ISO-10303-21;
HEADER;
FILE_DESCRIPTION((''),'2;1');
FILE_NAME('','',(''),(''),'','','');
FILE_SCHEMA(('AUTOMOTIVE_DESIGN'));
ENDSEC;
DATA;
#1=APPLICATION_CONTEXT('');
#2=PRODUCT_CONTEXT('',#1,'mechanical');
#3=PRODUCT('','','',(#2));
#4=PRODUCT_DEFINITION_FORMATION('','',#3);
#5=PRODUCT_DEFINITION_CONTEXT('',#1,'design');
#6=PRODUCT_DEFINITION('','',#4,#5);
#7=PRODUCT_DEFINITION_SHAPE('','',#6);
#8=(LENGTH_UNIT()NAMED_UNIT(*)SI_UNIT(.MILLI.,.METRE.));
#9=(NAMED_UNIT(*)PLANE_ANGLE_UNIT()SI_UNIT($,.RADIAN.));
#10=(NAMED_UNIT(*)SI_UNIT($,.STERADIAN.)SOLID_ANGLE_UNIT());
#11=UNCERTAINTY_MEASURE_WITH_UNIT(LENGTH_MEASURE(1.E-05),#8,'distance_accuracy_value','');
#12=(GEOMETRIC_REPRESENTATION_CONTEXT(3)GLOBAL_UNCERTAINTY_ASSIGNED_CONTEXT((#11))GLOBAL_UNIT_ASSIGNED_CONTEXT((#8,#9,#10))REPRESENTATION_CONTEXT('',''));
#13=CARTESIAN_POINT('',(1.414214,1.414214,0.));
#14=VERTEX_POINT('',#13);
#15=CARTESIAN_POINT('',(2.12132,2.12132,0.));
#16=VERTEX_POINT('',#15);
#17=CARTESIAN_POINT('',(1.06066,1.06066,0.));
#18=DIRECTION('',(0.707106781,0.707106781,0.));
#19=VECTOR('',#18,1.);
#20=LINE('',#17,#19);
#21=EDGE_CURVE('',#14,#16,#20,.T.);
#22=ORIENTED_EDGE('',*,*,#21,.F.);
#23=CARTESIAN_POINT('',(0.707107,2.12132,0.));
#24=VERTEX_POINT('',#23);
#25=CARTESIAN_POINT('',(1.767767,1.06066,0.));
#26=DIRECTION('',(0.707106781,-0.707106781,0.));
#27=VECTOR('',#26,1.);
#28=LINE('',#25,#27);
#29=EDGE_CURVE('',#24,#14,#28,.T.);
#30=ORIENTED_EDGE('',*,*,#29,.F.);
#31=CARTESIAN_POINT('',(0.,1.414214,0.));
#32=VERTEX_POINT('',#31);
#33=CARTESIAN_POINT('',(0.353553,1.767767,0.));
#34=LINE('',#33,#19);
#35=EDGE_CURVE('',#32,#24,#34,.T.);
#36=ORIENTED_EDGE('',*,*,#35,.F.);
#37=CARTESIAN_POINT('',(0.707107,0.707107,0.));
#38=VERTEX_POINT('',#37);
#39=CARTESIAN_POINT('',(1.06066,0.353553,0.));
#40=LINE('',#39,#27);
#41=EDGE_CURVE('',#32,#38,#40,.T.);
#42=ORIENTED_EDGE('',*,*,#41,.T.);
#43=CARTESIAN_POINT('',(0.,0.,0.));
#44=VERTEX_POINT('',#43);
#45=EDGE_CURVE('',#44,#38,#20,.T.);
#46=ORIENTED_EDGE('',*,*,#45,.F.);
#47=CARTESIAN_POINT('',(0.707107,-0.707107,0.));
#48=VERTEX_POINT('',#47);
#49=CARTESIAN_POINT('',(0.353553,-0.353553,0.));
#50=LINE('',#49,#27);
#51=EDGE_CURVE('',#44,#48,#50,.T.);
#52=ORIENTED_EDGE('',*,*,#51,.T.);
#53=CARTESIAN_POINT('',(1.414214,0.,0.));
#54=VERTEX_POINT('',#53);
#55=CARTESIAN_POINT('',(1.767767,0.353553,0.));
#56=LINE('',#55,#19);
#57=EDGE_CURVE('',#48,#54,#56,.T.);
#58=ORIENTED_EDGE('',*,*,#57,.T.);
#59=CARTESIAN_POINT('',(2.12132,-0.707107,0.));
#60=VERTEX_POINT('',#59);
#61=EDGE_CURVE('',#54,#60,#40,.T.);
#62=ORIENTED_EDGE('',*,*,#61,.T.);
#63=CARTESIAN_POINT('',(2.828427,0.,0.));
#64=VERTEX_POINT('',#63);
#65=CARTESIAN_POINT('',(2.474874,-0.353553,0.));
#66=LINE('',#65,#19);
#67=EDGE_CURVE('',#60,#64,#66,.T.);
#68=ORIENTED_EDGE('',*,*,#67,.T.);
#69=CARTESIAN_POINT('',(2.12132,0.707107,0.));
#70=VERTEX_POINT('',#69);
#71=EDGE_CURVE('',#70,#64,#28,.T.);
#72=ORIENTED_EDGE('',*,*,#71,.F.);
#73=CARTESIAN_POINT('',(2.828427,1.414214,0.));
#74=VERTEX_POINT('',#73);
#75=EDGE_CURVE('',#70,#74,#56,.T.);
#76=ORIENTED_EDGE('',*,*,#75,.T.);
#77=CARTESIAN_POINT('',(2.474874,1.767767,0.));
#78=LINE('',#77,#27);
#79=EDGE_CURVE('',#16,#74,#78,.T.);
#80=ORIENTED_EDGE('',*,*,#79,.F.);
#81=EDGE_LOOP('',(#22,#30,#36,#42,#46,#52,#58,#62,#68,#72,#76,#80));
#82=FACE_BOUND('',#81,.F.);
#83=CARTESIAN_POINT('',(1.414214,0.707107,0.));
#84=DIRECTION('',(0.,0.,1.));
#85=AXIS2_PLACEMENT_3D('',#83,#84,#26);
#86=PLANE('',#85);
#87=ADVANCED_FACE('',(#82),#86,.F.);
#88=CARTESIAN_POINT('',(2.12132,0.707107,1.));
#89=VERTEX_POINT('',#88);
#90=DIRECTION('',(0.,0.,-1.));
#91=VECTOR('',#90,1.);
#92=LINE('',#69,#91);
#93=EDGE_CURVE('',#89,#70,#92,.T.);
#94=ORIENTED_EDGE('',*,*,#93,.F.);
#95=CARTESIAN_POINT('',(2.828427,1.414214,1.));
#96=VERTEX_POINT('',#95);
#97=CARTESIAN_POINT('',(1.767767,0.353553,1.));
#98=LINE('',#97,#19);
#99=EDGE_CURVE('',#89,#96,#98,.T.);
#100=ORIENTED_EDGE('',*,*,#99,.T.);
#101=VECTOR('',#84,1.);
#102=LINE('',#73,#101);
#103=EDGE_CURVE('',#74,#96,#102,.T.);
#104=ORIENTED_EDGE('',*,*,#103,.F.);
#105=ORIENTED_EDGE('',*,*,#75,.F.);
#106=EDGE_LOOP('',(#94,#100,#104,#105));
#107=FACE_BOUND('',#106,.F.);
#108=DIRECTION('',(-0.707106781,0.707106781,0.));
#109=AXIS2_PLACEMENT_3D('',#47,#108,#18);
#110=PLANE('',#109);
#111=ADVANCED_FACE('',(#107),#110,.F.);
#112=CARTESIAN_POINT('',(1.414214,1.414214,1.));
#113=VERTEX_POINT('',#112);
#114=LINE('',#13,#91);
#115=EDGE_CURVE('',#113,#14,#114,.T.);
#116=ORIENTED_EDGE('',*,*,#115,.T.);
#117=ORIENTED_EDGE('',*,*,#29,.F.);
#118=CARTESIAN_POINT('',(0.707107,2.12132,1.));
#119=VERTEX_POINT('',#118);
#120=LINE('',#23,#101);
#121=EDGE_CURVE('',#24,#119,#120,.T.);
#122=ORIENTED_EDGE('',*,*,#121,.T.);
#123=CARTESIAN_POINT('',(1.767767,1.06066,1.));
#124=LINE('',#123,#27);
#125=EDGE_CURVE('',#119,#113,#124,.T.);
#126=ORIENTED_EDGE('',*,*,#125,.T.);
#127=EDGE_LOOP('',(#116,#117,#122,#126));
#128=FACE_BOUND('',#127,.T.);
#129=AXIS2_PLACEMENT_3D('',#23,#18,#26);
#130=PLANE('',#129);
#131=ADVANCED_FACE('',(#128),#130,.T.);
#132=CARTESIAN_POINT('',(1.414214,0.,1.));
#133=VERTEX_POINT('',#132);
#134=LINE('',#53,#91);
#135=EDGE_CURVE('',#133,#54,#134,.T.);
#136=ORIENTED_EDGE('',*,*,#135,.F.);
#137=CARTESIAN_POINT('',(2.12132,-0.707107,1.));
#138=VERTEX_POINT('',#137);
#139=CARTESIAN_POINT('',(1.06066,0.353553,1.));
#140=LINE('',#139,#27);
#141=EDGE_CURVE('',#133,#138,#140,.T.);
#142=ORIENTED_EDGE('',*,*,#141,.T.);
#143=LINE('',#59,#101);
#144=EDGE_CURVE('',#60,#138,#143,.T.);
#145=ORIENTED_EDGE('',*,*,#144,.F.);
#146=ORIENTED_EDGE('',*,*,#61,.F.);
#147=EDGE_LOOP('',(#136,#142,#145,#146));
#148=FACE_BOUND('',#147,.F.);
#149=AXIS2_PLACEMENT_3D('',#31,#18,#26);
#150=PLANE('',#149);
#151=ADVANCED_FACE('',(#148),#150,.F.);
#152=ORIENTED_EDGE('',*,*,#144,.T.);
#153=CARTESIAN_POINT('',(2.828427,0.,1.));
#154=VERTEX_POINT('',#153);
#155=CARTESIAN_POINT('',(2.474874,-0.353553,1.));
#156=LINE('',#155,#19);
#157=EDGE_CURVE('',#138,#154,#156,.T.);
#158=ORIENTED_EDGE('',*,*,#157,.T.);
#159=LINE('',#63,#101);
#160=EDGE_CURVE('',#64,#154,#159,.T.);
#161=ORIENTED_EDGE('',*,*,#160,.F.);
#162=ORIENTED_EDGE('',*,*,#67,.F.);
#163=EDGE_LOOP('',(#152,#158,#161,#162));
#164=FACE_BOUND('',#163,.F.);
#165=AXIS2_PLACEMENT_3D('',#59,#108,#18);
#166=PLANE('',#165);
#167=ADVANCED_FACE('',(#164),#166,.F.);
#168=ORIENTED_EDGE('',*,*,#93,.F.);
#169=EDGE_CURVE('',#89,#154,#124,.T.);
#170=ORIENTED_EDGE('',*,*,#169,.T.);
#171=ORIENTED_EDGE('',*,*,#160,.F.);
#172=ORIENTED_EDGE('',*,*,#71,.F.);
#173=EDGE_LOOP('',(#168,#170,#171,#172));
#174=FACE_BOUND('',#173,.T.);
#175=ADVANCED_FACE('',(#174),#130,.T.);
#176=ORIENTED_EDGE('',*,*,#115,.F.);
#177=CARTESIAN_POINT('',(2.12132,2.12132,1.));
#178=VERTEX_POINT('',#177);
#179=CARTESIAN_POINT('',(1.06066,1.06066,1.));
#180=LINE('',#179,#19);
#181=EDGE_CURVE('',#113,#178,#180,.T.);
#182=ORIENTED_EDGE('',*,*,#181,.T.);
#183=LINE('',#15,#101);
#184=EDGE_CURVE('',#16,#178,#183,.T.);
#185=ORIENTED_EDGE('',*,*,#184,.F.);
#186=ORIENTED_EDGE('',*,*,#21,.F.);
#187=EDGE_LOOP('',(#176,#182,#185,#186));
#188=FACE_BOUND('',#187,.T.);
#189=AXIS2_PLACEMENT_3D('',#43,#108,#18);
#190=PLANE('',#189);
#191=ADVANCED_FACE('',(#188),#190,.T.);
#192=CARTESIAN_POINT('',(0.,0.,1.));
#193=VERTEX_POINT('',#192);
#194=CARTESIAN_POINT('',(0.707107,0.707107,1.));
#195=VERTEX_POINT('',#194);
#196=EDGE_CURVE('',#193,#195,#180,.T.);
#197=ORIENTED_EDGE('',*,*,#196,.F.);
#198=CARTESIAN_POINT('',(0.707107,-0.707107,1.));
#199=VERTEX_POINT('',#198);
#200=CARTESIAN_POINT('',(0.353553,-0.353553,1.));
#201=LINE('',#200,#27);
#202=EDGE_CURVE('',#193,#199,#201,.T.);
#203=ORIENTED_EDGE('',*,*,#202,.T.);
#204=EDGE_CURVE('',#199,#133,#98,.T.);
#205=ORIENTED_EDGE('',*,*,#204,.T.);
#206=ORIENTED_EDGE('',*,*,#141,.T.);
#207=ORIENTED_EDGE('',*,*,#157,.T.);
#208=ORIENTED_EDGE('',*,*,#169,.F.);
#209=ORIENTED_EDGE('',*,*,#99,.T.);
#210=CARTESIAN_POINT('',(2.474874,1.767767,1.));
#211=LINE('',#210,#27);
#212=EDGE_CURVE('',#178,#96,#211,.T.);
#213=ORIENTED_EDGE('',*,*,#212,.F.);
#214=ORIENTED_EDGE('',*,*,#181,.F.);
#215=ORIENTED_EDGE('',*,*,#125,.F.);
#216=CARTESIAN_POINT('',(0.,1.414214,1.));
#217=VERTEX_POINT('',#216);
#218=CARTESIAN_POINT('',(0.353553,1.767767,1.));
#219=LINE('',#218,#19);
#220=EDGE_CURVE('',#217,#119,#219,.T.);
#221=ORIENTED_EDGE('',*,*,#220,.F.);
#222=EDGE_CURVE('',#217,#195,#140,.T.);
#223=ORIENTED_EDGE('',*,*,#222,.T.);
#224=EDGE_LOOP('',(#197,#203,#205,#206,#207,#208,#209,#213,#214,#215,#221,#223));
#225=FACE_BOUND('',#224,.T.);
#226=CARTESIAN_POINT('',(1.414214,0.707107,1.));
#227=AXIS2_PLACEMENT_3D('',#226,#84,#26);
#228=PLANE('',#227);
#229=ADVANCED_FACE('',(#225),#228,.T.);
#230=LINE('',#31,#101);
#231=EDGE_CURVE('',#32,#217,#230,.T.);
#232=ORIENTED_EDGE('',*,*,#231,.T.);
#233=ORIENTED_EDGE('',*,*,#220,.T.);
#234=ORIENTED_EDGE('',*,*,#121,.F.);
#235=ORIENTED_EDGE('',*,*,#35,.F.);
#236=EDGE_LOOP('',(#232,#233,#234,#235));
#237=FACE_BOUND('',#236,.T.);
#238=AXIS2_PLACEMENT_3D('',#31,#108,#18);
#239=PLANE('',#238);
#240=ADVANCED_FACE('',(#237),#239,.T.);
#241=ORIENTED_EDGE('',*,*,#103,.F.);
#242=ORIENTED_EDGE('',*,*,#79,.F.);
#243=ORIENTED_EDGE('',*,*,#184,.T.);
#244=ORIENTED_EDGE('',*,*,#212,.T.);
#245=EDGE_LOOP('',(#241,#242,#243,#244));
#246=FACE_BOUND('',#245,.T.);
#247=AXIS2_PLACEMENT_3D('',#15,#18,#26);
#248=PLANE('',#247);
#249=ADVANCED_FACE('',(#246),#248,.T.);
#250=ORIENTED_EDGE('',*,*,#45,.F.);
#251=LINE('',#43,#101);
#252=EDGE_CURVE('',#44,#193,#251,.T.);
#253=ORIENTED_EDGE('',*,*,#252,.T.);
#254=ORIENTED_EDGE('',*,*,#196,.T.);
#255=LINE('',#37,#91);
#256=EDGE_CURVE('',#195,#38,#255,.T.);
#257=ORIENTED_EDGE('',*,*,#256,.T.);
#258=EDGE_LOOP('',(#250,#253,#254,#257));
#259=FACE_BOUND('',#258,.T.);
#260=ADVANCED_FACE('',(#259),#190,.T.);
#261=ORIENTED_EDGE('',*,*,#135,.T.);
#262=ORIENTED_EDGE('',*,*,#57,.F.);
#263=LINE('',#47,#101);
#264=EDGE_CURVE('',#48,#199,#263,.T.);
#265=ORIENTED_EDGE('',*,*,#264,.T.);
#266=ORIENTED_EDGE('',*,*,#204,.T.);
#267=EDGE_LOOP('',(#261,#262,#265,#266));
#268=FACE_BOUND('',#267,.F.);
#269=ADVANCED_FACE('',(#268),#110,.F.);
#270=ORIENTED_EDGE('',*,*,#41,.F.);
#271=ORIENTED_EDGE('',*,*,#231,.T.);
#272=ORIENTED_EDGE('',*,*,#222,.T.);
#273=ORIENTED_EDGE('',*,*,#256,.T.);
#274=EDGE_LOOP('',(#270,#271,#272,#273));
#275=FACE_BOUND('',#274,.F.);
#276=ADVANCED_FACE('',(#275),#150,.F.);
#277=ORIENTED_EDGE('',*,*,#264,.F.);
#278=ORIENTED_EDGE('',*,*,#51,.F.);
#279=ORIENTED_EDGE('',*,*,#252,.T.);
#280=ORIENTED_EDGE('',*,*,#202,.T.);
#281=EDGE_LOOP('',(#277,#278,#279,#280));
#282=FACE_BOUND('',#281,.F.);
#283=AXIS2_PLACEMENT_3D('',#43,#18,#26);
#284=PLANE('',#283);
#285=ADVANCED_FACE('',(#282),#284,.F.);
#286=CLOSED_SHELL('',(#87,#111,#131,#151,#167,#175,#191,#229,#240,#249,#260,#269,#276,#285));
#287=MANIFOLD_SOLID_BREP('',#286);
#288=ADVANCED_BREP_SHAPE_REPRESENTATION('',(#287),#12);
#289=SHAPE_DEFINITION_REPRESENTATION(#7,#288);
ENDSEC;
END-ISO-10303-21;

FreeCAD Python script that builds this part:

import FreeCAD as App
import Part
import Sketcher

V = App.Vector
Q = App.Units.Quantity

doc = App.newDocument("Part")
body = doc.addObject("PartDesign::Body", "Body")

# Sketch on XY plane
sketch1 = doc.addObject("Sketcher::SketchObject", "Sketch")
body.addObject(sketch1)
sketch1.AttachmentSupport = (doc.XY_Plane, [""])
sketch1.MapMode = "FlatFace"
sketch1.addGeometry([
    Part.LineSegment(V(-1, 2, 0), V(-1, 1, 0)),
    Part.LineSegment(V(-1, 1, 0), V(2, 1, 0)),
    Part.LineSegment(V(2, 1, 0), V(2, 2, 0)),
    Part.LineSegment(V(2, 2, 0), V(-1, 2, 0)),
], False)
sketch1.addConstraint([
    Sketcher.Constraint("Coincident", 0, 2, 1, 1),
    Sketcher.Constraint("Coincident", 1, 2, 2, 1),
    Sketcher.Constraint("Coincident", 2, 2, 3, 1),
    Sketcher.Constraint("Coincident", 3, 2, 0, 1),
    Sketcher.Constraint("Vertical", 0),
    Sketcher.Constraint("Horizontal", 1),
    Sketcher.Constraint("Vertical", 2),
    Sketcher.Constraint("Horizontal", 3),
    Sketcher.Constraint("DistanceX", 1, 1, 1, 2, Q("3 mm")),
    Sketcher.Constraint("DistanceY", 0, 2, 0, 1, Q("1 mm")),
    Sketcher.Constraint("DistanceX", 0, 2, -1, 1, Q("1 mm")),
    Sketcher.Constraint("DistanceY", -1, 1, 0, 2, Q("1 mm")),
])
pad1 = doc.addObject("PartDesign::Pad", "Pad")
body.addObject(pad1)
pad1.Profile = sketch1
pad1.Length = 1
body2 = doc.addObject("PartDesign::Body", "Body001")

# Sketch on XY plane
sketch2 = doc.addObject("Sketcher::SketchObject", "Sketch001")
body2.addObject(sketch2)
sketch2.AttachmentSupport = (doc.getObject("XY_Plane001"), [""])
sketch2.MapMode = "FlatFace"
sketch2.addGeometry([
    Part.LineSegment(V(0, 3, 0), V(0, 0, 0)),
    Part.LineSegment(V(0, 0, 0), V(1, 0, 0)),
    Part.LineSegment(V(1, 0, 0), V(1, 3, 0)),
    Part.LineSegment(V(1, 3, 0), V(0, 3, 0)),
], False)
sketch2.addConstraint([
    Sketcher.Constraint("Coincident", 0, 2, 1, 1),
    Sketcher.Constraint("Coincident", 1, 2, 2, 1),
    Sketcher.Constraint("Coincident", 2, 2, 3, 1),
    Sketcher.Constraint("Coincident", 3, 2, 0, 1),
    Sketcher.Constraint("Vertical", 0),
    Sketcher.Constraint("Horizontal", 1),
    Sketcher.Constraint("Vertical", 2),
    Sketcher.Constraint("Horizontal", 3),
    Sketcher.Constraint("Coincident", 0, 2, -1, 1),
    Sketcher.Constraint("DistanceX", 1, 1, 1, 2, Q("1 mm")),
    Sketcher.Constraint("DistanceY", 0, 2, 0, 1, Q("3 mm")),
])
pad2 = doc.addObject("PartDesign::Pad", "Pad001")
body2.addObject(pad2)
pad2.Profile = sketch2
pad2.Length = 1
doc.recompute()

boolean = doc.addObject("PartDesign::Boolean", "Boolean")
body2.addObject(boolean)
boolean.Type = "Fuse"
boolean.addObjects([body])
body3 = doc.addObject("PartDesign::Body", "Body002")
doc.recompute()

body2.Placement = App.Placement(V(0, 0, 0), App.Rotation(V(0, 0, 1), 315))
boolean2 = doc.addObject("PartDesign::Boolean", "Boolean001")
body3.addObject(boolean2)
boolean2.Type = "Fuse"
boolean2.addObjects([body2])

doc.recompute()
